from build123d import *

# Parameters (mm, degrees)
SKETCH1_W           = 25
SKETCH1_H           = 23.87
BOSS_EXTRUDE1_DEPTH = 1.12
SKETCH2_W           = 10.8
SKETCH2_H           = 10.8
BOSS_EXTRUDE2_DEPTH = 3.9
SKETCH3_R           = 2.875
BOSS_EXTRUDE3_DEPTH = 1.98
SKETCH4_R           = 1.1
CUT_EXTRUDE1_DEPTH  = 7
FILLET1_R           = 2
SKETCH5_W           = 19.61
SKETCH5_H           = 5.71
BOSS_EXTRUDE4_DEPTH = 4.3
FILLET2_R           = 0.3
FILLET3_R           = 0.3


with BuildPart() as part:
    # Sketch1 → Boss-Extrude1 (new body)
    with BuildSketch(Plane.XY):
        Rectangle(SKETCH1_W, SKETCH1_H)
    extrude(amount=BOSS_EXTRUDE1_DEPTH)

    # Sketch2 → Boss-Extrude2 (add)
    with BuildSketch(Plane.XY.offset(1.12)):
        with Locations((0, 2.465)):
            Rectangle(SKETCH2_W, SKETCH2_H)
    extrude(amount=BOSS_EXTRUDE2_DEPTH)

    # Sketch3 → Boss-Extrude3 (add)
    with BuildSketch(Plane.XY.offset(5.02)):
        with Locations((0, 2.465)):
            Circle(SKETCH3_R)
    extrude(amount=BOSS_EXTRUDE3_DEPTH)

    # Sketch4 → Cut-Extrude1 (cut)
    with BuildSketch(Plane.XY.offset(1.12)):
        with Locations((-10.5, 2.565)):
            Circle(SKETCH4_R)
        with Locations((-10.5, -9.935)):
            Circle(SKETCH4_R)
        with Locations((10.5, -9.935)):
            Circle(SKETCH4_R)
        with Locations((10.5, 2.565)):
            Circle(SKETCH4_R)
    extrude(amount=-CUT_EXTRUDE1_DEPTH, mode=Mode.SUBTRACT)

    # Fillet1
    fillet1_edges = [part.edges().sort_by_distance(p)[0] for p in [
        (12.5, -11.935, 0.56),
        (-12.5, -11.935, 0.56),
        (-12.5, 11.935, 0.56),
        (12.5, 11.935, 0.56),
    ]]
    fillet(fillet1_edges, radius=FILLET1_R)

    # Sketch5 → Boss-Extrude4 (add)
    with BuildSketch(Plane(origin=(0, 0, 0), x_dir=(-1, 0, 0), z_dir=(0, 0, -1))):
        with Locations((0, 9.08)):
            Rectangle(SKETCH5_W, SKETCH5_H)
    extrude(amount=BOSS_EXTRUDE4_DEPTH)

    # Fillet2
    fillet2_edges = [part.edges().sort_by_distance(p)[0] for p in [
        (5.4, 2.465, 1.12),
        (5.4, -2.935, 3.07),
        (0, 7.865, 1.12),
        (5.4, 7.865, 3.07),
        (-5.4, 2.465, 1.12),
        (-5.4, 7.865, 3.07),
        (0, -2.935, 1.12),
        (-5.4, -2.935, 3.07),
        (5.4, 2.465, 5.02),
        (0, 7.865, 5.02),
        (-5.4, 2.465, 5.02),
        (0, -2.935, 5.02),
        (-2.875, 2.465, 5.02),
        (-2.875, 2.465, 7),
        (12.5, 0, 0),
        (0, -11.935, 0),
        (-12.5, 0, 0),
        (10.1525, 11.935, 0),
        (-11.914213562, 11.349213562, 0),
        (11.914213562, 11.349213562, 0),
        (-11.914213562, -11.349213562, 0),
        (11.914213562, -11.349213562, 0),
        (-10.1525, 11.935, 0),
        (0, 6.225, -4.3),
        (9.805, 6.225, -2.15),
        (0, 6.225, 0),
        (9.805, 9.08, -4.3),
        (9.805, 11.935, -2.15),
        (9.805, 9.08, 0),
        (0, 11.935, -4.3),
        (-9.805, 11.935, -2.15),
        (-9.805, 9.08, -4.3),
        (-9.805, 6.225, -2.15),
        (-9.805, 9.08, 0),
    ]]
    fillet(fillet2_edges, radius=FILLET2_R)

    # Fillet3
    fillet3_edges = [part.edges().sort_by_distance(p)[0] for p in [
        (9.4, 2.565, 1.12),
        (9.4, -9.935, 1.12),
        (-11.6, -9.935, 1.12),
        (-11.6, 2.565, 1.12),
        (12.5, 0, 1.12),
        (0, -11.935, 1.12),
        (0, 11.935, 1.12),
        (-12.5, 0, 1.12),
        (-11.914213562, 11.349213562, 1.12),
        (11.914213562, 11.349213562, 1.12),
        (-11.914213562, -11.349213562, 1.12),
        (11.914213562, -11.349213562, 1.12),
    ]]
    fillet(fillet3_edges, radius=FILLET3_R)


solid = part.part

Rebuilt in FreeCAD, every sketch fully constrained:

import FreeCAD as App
import Part
import Sketcher

V = App.Vector
Q = App.Units.Quantity


def edges_at(feature, points):
    """Names of the edges that pass closest to the given points."""
    edges = feature.Shape.Edges
    near = lambda p: min(range(len(edges)), key=lambda i: edges[i].distToShape(Part.Vertex(*p))[0])
    return sorted({f"Edge{near(p) + 1}" for p in points})


def add_polygon(sketch, points):
    """Adds a closed chain of lines whose ends are joined by coincident constraints."""
    first, n = sketch.GeometryCount, len(points)
    for a, b in zip(points, points[1:] + points[:1]):
        sketch.addGeometry(Part.LineSegment(App.Vector(*a, 0), App.Vector(*b, 0)), False)
    for i in range(n):
        sketch.addConstraint(Sketcher.Constraint("Coincident", first + i, 2, first + (i + 1) % n, 1))

doc = App.newDocument("Part")
body = doc.addObject("PartDesign::Body", "Body")

sketch1 = body.newObject("Sketcher::SketchObject", "Sketch")
sketch1.AttachmentSupport = (doc.getObject("XY_Plane"), [""])
sketch1.MapMode = "FlatFace"
add_polygon(sketch1, [(-12.5, 11.935), (-12.5, -11.935), (12.5, -11.935), (12.5, 11.935)])
sketch1.addConstraint([
    Sketcher.Constraint("Vertical", 0),
    Sketcher.Constraint("Horizontal", 1),
    Sketcher.Constraint("Vertical", 2),
    Sketcher.Constraint("Horizontal", 3),
    Sketcher.Constraint("Symmetric", 0, 2, 2, 2, -1, 1),
    Sketcher.Constraint("DistanceX", 1, 1, 1, 2, Q("25 mm")),
    Sketcher.Constraint("DistanceY", 0, 2, 0, 1, Q("23.87 mm")),
])
pad1 = body.newObject("PartDesign::Pad", "Pad")
pad1.Profile = sketch1
pad1.Length = 1.12

sketch2 = body.newObject("Sketcher::SketchObject", "Sketch001")
sketch2.AttachmentSupport = (doc.getObject("XY_Plane"), [""])
sketch2.MapMode = "FlatFace"
sketch2.AttachmentOffset = App.Placement(V(0, 0, 1.12), App.Rotation())
add_polygon(sketch2, [(-5.4, 7.865), (-5.4, -2.935), (5.4, -2.935), (5.4, 7.865)])
sketch2.addConstraint([
    Sketcher.Constraint("Vertical", 0),
    Sketcher.Constraint("Horizontal", 1),
    Sketcher.Constraint("Vertical", 2),
    Sketcher.Constraint("Horizontal", 3),
    Sketcher.Constraint("Equal", 3, 0),
    Sketcher.Constraint("DistanceX", 1, 1, 1, 2, Q("10.8 mm")),
    Sketcher.Constraint("DistanceX", 0, 2, -1, 1, Q("5.4 mm")),
    Sketcher.Constraint("DistanceY", 0, 2, -1, 1, Q("2.935 mm")),
])
pad2 = body.newObject("PartDesign::Pad", "Pad001")
pad2.Profile = sketch2
pad2.Length = 3.9

sketch3 = body.newObject("Sketcher::SketchObject", "Sketch002")
sketch3.AttachmentSupport = (doc.getObject("XY_Plane"), [""])
sketch3.MapMode = "FlatFace"
sketch3.AttachmentOffset = App.Placement(V(0, 0, 5.02), App.Rotation())
sketch3.addGeometry(Part.Circle(V(0, 2.465, 0), V(0, 0, 1), 2.875), False)
sketch3.addConstraint([
    Sketcher.Constraint("PointOnObject", 0, 3, -2),
    Sketcher.Constraint("Diameter", 0, Q("5.75 mm")),
    Sketcher.Constraint("DistanceY", -1, 1, 0, 3, Q("2.465 mm")),
])
pad3 = body.newObject("PartDesign::Pad", "Pad002")
pad3.Profile = sketch3
pad3.Length = 1.98

sketch4 = body.newObject("Sketcher::SketchObject", "Sketch003")
sketch4.AttachmentSupport = (doc.getObject("XY_Plane"), [""])
sketch4.MapMode = "FlatFace"
sketch4.AttachmentOffset = App.Placement(V(0, 0, 1.12), App.Rotation())
sketch4.addGeometry([
    Part.Circle(V(-10.5, 2.565, 0), V(0, 0, 1), 1.1),
    Part.Circle(V(-10.5, -9.935, 0), V(0, 0, 1), 1.1),
    Part.Circle(V(10.5, -9.935, 0), V(0, 0, 1), 1.1),
    Part.Circle(V(10.5, 2.565, 0), V(0, 0, 1), 1.1),
], False)
sketch4.addConstraint([
    Sketcher.Constraint("Equal", 0, 1),
    Sketcher.Constraint("Equal", 1, 2),
    Sketcher.Constraint("Equal", 2, 3),
    Sketcher.Constraint("Symmetric", 1, 3, 2, 3, -2),
    Sketcher.Constraint("Symmetric", 0, 3, 3, 3, -2),
    Sketcher.Constraint("Vertical", 0, 3, 1, 3),
    Sketcher.Constraint("Diameter", 0, Q("2.2 mm")),
    Sketcher.Constraint("DistanceX", 1, 3, 2, 3, Q("21 mm")),
    Sketcher.Constraint("DistanceY", 1, 3, 0, 3, Q("12.5 mm")),
    Sketcher.Constraint("DistanceY", -1, 1, 0, 3, Q("2.565 mm")),
])
pocket1 = body.newObject("PartDesign::Pocket", "Pocket")
pocket1.Profile = sketch4
pocket1.Length = 7
doc.recompute()

fillet = body.newObject("PartDesign::Fillet", "Fillet")
fillet.Base = (pocket1, edges_at(pocket1, [
    (12.5, -11.935, 0.56),
    (-12.5, -11.935, 0.56),
    (-12.5, 11.935, 0.56),
    (12.5, 11.935, 0.56),
]))
fillet.Radius = 2

sketch5 = body.newObject("Sketcher::SketchObject", "Sketch004")
sketch5.AttachmentSupport = (doc.getObject("XY_Plane"), [""])
sketch5.MapMode = "FlatFace"
add_polygon(sketch5, [(9.805, 11.935), (9.805, 6.225), (-9.805, 6.225), (-9.805, 11.935)])
sketch5.addConstraint([
    Sketcher.Constraint("Vertical", 0),
    Sketcher.Constraint("Horizontal", 1),
    Sketcher.Constraint("Vertical", 2),
    Sketcher.Constraint("Horizontal", 3),
    Sketcher.Constraint("DistanceX", 1, 2, 1, 1, Q("19.61 mm")),
    Sketcher.Constraint("DistanceY", 0, 2, 0, 1, Q("5.71 mm")),
    Sketcher.Constraint("DistanceX", -1, 1, 0, 2, Q("9.805 mm")),
    Sketcher.Constraint("DistanceY", -1, 1, 0, 2, Q("6.225 mm")),
])
pad4 = body.newObject("PartDesign::Pad", "Pad003")
pad4.Profile = sketch5
pad4.Length = 4.3
pad4.Reversed = True
doc.recompute()

fillet2 = body.newObject("PartDesign::Fillet", "Fillet001")
fillet2.Base = (pad4, edges_at(pad4, [
    (5.4, 2.465, 1.12),
    (5.4, -2.935, 3.07),
    (0, 7.865, 1.12),
    (5.4, 7.865, 3.07),
    (-5.4, 2.465, 1.12),
    (-5.4, 7.865, 3.07),
    (0, -2.935, 1.12),
    (-5.4, -2.935, 3.07),
    (5.4, 2.465, 5.02),
    (0, 7.865, 5.02),
    (-5.4, 2.465, 5.02),
    (0, -2.935, 5.02),
    (-2.875, 2.465, 5.02),
    (-2.875, 2.465, 7),
    (12.5, 0, 0),
    (0, -11.935, 0),
    (-12.5, 0, 0),
    (10.152, 11.935, 0),
    (-11.914, 11.349, 0),
    (11.914, 11.349, 0),
    (-11.914, -11.349, 0),
    (11.914, -11.349, 0),
    (-10.152, 11.935, 0),
    (0, 6.225, -4.3),
    (9.805, 6.225, -2.15),
    (0, 6.225, 0),
    (9.805, 9.08, -4.3),
    (9.805, 11.935, -2.15),
    (9.805, 9.08, 0),
    (0, 11.935, -4.3),
    (-9.805, 11.935, -2.15),
    (-9.805, 9.08, -4.3),
    (-9.805, 6.225, -2.15),
    (-9.805, 9.08, 0),
]))
fillet2.Radius = 0.3
doc.recompute()

fillet3 = body.newObject("PartDesign::Fillet", "Fillet002")
fillet3.Base = (fillet2, edges_at(fillet2, [
    (9.4, 2.565, 1.12),
    (9.4, -9.935, 1.12),
    (-11.6, -9.935, 1.12),
    (-11.6, 2.565, 1.12),
    (12.5, 0, 1.12),
    (0, -11.935, 1.12),
    (0, 11.935, 1.12),
    (-12.5, 0, 1.12),
    (-11.914, 11.349, 1.12),
    (11.914, 11.349, 1.12),
    (-11.914, -11.349, 1.12),
    (11.914, -11.349, 1.12),
]))
fillet3.Radius = 0.3

doc.recompute()
